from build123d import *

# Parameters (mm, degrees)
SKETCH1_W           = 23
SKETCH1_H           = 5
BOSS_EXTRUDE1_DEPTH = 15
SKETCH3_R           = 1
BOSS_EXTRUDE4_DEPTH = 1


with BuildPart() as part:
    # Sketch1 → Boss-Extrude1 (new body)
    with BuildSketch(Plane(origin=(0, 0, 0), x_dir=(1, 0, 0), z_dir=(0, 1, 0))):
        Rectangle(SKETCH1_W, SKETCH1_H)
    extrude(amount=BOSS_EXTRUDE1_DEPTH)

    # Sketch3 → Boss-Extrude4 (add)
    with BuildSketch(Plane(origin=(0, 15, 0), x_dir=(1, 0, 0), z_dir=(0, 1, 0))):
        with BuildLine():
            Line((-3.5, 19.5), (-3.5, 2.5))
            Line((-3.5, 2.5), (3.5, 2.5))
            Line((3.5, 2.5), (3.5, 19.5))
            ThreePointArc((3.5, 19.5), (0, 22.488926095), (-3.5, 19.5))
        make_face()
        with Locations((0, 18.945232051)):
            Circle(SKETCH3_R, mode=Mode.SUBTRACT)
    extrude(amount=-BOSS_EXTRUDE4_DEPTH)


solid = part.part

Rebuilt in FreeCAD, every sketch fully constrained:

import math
import FreeCAD as App
import Part
import Sketcher


def add_polygon(sketch, points):
    """Adds a closed chain of lines whose ends are joined by coincident constraints."""
    first, n = sketch.GeometryCount, len(points)
    for a, b in zip(points, points[1:] + points[:1]):
        sketch.addGeometry(Part.LineSegment(App.Vector(*a, 0), App.Vector(*b, 0)), False)
    for i in range(n):
        sketch.addConstraint(Sketcher.Constraint("Coincident", first + i, 2, first + (i + 1) % n, 1))

doc = App.newDocument("Part")
body = doc.addObject("PartDesign::Body", "Body")

sketch1 = body.newObject("Sketcher::SketchObject", "Sketch")
sketch1.AttachmentSupport = (doc.getObject("XZ_Plane"), [""])
sketch1.MapMode = "FlatFace"
add_polygon(sketch1, [(-11.5, -2.5), (-11.5, 2.5), (11.5, 2.5), (11.5, -2.5)])
sketch1.addConstraint([
    Sketcher.Constraint("Vertical", 0),
    Sketcher.Constraint("Horizontal", 1),
    Sketcher.Constraint("Vertical", 2),
    Sketcher.Constraint("Horizontal", 3),
    Sketcher.Constraint("Symmetric", 0, 2, 2, 2, -1, 1),
    Sketcher.Constraint("DistanceX", 1, 1, 1, 2, 23.0),
    Sketcher.Constraint("DistanceY", 0, 1, 0, 2, 5.0),
])
pad1 = body.newObject("PartDesign::Pad", "Pad")
pad1.Profile = sketch1
pad1.Length = 15
pad1.Reversed = True

sketch2 = body.newObject("Sketcher::SketchObject", "Sketch001")
sketch2.AttachmentSupport = (doc.getObject("XZ_Plane"), [""])
sketch2.MapMode = "FlatFace"
sketch2.AttachmentOffset = App.Placement(App.Vector(0, 0, -15), App.Rotation())
sketch2.addGeometry([
    Part.LineSegment(App.Vector(-3.5, -19.5, 0), App.Vector(-3.5, -2.5, 0)),
    Part.LineSegment(App.Vector(-3.5, -2.5, 0), App.Vector(3.5, -2.5, 0)),
    Part.LineSegment(App.Vector(3.5, -2.5, 0), App.Vector(3.5, -19.5, 0)),
    Part.ArcOfCircle(Part.Circle(App.Vector(0, -18.945232, 0), App.Vector(0, 0, 1), 3.543694), math.radians(-170.993254), math.radians(-9.006746)),
    Part.Circle(App.Vector(0, -18.945232, 0), App.Vector(0, 0, 1), 1),
], False)
sketch2.addConstraint([
    Sketcher.Constraint("Coincident", 0, 2, 1, 1),
    Sketcher.Constraint("Coincident", 1, 2, 2, 1),
    Sketcher.Constraint("Coincident", 2, 2, 3, 2),
    Sketcher.Constraint("Coincident", 3, 1, 0, 1),
    Sketcher.Constraint("Vertical", 0),
    Sketcher.Constraint("Horizontal", 1),
    Sketcher.Constraint("Vertical", 2),
    Sketcher.Constraint("Coincident", 4, 3, 3, 3),
    Sketcher.Constraint("Symmetric", 2, 2, 3, 1, -2),
    Sketcher.Constraint("Diameter", 4, 2.0),
    Sketcher.Constraint("DistanceX", 1, 1, 1, 2, 7.0),
    Sketcher.Constraint("DistanceY", 0, 1, 0, 2, 17.0),
    Sketcher.Constraint("DistanceY", 0, 2, -1, 1, 2.5),
    Sketcher.Constraint("Radius", 3, 3.543694),
])
pad2 = body.newObject("PartDesign::Pad", "Pad001")
pad2.Profile = sketch2
pad2.Length = 1

doc.recompute()
